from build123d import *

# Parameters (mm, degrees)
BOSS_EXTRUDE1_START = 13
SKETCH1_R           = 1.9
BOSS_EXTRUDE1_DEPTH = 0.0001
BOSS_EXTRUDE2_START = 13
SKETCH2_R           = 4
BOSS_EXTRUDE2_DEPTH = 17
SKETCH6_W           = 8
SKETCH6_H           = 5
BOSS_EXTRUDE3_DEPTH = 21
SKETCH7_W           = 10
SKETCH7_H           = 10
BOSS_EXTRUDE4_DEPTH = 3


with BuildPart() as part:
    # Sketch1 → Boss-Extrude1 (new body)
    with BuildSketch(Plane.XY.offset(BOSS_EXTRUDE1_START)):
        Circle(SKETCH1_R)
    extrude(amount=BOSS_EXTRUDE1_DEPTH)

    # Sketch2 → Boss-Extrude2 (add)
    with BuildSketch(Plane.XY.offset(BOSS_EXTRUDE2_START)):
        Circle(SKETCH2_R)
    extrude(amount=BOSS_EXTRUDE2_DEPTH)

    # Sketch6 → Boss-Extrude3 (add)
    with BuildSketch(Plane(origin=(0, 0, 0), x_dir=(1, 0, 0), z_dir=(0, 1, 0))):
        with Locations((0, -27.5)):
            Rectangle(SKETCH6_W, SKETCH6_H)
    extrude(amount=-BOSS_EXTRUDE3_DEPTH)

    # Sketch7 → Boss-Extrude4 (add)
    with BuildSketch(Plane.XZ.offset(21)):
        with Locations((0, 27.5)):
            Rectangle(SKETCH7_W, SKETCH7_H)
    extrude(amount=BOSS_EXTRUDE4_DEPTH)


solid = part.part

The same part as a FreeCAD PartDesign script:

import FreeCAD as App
import Part
import Sketcher

V = App.Vector
Q = App.Units.Quantity


def add_polygon(sketch, points):
    """Adds a closed chain of lines whose ends are joined by coincident constraints."""
    first, n = sketch.GeometryCount, len(points)
    for a, b in zip(points, points[1:] + points[:1]):
        sketch.addGeometry(Part.LineSegment(App.Vector(*a, 0), App.Vector(*b, 0)), False)
    for i in range(n):
        sketch.addConstraint(Sketcher.Constraint("Coincident", first + i, 2, first + (i + 1) % n, 1))

doc = App.newDocument("Part")
body = doc.addObject("PartDesign::Body", "Body")

# Sketch on XY plane
sketch1 = body.newObject("Sketcher::SketchObject", "Sketch")
sketch1.AttachmentSupport = (doc.getObject("XY_Plane"), [""])
sketch1.MapMode = "FlatFace"
sketch1.AttachmentOffset = App.Placement(V(0, 0, 13), App.Rotation())
sketch1.addGeometry(Part.Circle(V(0, 0, 0), V(0, 0, 1), 1.9), False)
sketch1.addConstraint(Sketcher.Constraint("Coincident", 0, 3, -1, 1))
sketch1.addConstraint(Sketcher.Constraint("Diameter", 0, Q("3.8 mm")))
pad1 = body.newObject("PartDesign::Pad", "Pad")
pad1.Profile = sketch1
pad1.Length = 0.0001

# Sketch on XY plane
sketch2 = body.newObject("Sketcher::SketchObject", "Sketch001")
sketch2.AttachmentSupport = (doc.getObject("XY_Plane"), [""])
sketch2.MapMode = "FlatFace"
sketch2.AttachmentOffset = App.Placement(V(0, 0, 13), App.Rotation())
sketch2.addGeometry(Part.Circle(V(0, 0, 0), V(0, 0, 1), 4), False)
sketch2.addConstraint(Sketcher.Constraint("Coincident", 0, 3, -1, 1))
sketch2.addConstraint(Sketcher.Constraint("Diameter", 0, Q("8 mm")))
pad2 = body.newObject("PartDesign::Pad", "Pad001")
pad2.Profile = sketch2
pad2.Length = 17

# Sketch on XZ plane
sketch3 = body.newObject("Sketcher::SketchObject", "Sketch002")
sketch3.AttachmentSupport = (doc.getObject("XZ_Plane"), [""])
sketch3.MapMode = "FlatFace"
add_polygon(sketch3, [(-4, 25), (-4, 30), (4, 30), (4, 25)])  # lines 0-3
sketch3.addConstraint(Sketcher.Constraint("Vertical", 0))
sketch3.addConstraint(Sketcher.Constraint("Horizontal", 1))
sketch3.addConstraint(Sketcher.Constraint("Vertical", 2))
sketch3.addConstraint(Sketcher.Constraint("Horizontal", 3))
sketch3.addConstraint(Sketcher.Constraint("DistanceX", 1, 1, 1, 2, Q("8 mm")))
sketch3.addConstraint(Sketcher.Constraint("DistanceY", 0, 1, 0, 2, Q("5 mm")))
sketch3.addConstraint(Sketcher.Constraint("DistanceX", 0, 2, -1, 1, Q("4 mm")))
sketch3.addConstraint(Sketcher.Constraint("DistanceY", -1, 1, 0, 2, Q("30 mm")))
pad3 = body.newObject("PartDesign::Pad", "Pad002")
pad3.Profile = sketch3
pad3.Length = 21

# Sketch on XZ plane
sketch4 = body.newObject("Sketcher::SketchObject", "Sketch003")
sketch4.AttachmentSupport = (doc.getObject("XZ_Plane"), [""])
sketch4.MapMode = "FlatFace"
sketch4.AttachmentOffset = App.Placement(V(0, 0, 21), App.Rotation())
add_polygon(sketch4, [(-5, 32), (-5, 22), (5, 22), (5, 32)])  # lines 0-3
sketch4.addConstraint(Sketcher.Constraint("Vertical", 0))
sketch4.addConstraint(Sketcher.Constraint("Horizontal", 1))
sketch4.addConstraint(Sketcher.Constraint("Vertical", 2))
sketch4.addConstraint(Sketcher.Constraint("Horizontal", 3))
sketch4.addConstraint(Sketcher.Constraint("Equal", 3, 0))
sketch4.addConstraint(Sketcher.Constraint("DistanceX", 1, 1, 1, 2, Q("10 mm")))
sketch4.addConstraint(Sketcher.Constraint("DistanceX", 0, 2, -1, 1, Q("5 mm")))
sketch4.addConstraint(Sketcher.Constraint("DistanceY", -1, 1, 0, 2, Q("22.5 mm")))
pad4 = body.newObject("PartDesign::Pad", "Pad003")
pad4.Profile = sketch4
pad4.Length = 3

doc.recompute()
